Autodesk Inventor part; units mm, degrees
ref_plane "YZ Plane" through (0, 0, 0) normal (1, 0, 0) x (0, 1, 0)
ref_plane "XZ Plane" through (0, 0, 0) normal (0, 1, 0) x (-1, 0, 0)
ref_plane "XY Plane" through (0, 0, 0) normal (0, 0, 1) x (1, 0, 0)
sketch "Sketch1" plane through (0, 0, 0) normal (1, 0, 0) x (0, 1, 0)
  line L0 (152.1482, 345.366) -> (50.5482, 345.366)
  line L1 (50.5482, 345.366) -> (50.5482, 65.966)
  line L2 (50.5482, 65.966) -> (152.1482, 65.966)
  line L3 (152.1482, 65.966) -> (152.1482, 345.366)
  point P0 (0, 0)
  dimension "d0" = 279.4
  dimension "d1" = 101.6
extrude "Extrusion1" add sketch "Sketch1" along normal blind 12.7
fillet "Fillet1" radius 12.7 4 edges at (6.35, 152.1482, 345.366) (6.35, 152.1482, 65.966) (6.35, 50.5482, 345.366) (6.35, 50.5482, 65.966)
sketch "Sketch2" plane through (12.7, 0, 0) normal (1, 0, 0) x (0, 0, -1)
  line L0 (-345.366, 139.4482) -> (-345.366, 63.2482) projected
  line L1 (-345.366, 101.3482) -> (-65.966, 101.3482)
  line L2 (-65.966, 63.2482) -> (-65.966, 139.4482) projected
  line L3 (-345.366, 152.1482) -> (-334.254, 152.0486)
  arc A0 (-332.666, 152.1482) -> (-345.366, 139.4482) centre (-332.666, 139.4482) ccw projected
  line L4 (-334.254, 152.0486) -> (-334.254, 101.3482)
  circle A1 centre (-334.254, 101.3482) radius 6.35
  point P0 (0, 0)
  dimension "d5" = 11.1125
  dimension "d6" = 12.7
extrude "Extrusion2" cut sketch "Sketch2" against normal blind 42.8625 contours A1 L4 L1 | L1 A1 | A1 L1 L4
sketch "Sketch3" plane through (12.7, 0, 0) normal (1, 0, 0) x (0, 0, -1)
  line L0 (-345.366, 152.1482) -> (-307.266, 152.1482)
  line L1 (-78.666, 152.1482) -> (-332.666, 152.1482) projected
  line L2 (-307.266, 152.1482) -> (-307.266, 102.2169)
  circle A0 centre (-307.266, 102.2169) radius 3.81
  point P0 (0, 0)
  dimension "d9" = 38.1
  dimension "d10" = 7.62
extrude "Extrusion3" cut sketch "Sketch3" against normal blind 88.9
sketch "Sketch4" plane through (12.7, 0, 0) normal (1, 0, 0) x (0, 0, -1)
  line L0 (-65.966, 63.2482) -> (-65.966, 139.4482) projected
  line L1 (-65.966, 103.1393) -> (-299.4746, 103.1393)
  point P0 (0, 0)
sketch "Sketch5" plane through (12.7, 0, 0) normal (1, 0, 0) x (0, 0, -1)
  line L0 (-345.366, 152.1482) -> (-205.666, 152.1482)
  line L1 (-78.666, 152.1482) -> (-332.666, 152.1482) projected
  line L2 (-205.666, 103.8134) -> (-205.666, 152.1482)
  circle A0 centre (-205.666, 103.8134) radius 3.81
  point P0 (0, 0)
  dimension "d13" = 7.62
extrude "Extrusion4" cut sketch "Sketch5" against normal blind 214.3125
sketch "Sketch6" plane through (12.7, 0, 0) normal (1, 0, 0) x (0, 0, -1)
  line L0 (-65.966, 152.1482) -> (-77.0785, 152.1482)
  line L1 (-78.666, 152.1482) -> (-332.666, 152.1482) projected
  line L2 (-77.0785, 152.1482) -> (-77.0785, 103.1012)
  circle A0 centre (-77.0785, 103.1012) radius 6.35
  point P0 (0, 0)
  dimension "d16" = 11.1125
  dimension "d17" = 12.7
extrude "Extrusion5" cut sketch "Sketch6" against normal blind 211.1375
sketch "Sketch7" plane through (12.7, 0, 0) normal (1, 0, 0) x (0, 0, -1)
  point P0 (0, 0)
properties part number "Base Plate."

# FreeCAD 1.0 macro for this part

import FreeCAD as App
import Part
import Sketcher
from FreeCAD import Vector
Q = App.Units.Quantity


def edges_at(feature, points):
    """Names of the edges that pass closest to the given points."""
    edges = feature.Shape.Edges
    near = lambda p: min(range(len(edges)), key=lambda i: edges[i].distToShape(Part.Vertex(*p))[0])
    return sorted({f"Edge{near(p) + 1}" for p in points})

doc = App.newDocument("Part")
body = doc.addObject("PartDesign::Body", "Body")

# Sketch on YZ plane
sketch1 = body.newObject("Sketcher::SketchObject", "Sketch")
sketch1.AttachmentSupport = (doc.getObject("YZ_Plane"), [""])
sketch1.MapMode = "FlatFace"
sketch1.addGeometry(Part.LineSegment(Vector(152, 66, 0), Vector(152, 345, 0)), False)
sketch1.addGeometry(Part.LineSegment(Vector(152, 345, 0), Vector(51, 345, 0)), False)
sketch1.addGeometry(Part.LineSegment(Vector(51, 345, 0), Vector(51, 66, 0)), False)
sketch1.addGeometry(Part.LineSegment(Vector(51, 66, 0), Vector(152, 66, 0)), False)
sketch1.addConstraint(Sketcher.Constraint("Coincident", 0, 2, 1, 1))
sketch1.addConstraint(Sketcher.Constraint("Coincident", 1, 2, 2, 1))
sketch1.addConstraint(Sketcher.Constraint("Coincident", 2, 2, 3, 1))
sketch1.addConstraint(Sketcher.Constraint("Coincident", 3, 2, 0, 1))
sketch1.addConstraint(Sketcher.Constraint("Vertical", 0))
sketch1.addConstraint(Sketcher.Constraint("Horizontal", 1))
sketch1.addConstraint(Sketcher.Constraint("Vertical", 2))
sketch1.addConstraint(Sketcher.Constraint("Horizontal", 3))
sketch1.addConstraint(Sketcher.Constraint("DistanceX", 1, 2, 1, 1, Q("4 in")))
sketch1.addConstraint(Sketcher.Constraint("DistanceY", 0, 1, 0, 2, Q("11 in")))
sketch1.addConstraint(Sketcher.Constraint("DistanceX", -1, 1, 0, 2, Q("152.1482 mm")))
sketch1.addConstraint(Sketcher.Constraint("DistanceY", -1, 1, 0, 2, Q("345.366 mm")))
pad1 = body.newObject("PartDesign::Pad", "Pad")
pad1.Profile = sketch1
pad1.Length = Q("0.5 in")
doc.recompute()

fillet = body.newObject("PartDesign::Fillet", "Fillet")
fillet.Base = (pad1, edges_at(pad1, [
    (6.35, 152.148, 345.366),
    (6.35, 152.148, 65.966),
    (6.35, 50.548, 345.366),
    (6.35, 50.548, 65.966),
]))
fillet.Radius = Q("0.5 in")

# Sketch on YZ plane
sketch2 = body.newObject("Sketcher::SketchObject", "Sketch001")
sketch2.AttachmentSupport = (doc.getObject("YZ_Plane"), [""])
sketch2.MapMode = "FlatFace"
sketch2.AttachmentOffset = App.Placement(Vector(0, 0, 0.5 * 25.4), App.Rotation())
sketch2.addGeometry(Part.Circle(Vector(101, 334, 0), Vector(0, 0, 1), 6), False)
sketch2.addConstraint(Sketcher.Constraint("Diameter", 0, Q("0.5 in")))
sketch2.addConstraint(Sketcher.Constraint("DistanceY", -1, 1, 0, 3, Q("13.1596 in")))
sketch2.addConstraint(Sketcher.Constraint("DistanceX", -1, 1, 0, 3, Q("101.3482 mm")))
pocket1 = body.newObject("PartDesign::Pocket", "Pocket")
pocket1.Profile = sketch2
pocket1.Length = Q("1.6875 in")

# Sketch on YZ plane
sketch3 = body.newObject("Sketcher::SketchObject", "Sketch002")
sketch3.AttachmentSupport = (doc.getObject("YZ_Plane"), [""])
sketch3.MapMode = "FlatFace"
sketch3.AttachmentOffset = App.Placement(Vector(0, 0, 0.5 * 25.4), App.Rotation())
sketch3.addGeometry(Part.Circle(Vector(102.2, 307.3, 0), Vector(0, 0, 1), 3.8), False)
sketch3.addConstraint(Sketcher.Constraint("Diameter", 0, Q("0.3 in")))
sketch3.addConstraint(Sketcher.Constraint("DistanceX", -1, 1, 0, 3, Q("4.0242913 in")))
sketch3.addConstraint(Sketcher.Constraint("DistanceY", -1, 1, 0, 3, Q("307.266 mm")))
pocket2 = body.newObject("PartDesign::Pocket", "Pocket001")
pocket2.Profile = sketch3
pocket2.Length = Q("3.5 in")

# Sketch on YZ plane
sketch4 = body.newObject("Sketcher::SketchObject", "Sketch003")
sketch4.AttachmentSupport = (doc.getObject("YZ_Plane"), [""])
sketch4.MapMode = "FlatFace"
sketch4.AttachmentOffset = App.Placement(Vector(0, 0, 0.5 * 25.4), App.Rotation())
sketch4.addGeometry(Part.Circle(Vector(103.8, 205.7, 0), Vector(0, 0, 1), 3.8), False)
sketch4.addConstraint(Sketcher.Constraint("Diameter", 0, Q("0.3 in")))
sketch4.addConstraint(Sketcher.Constraint("DistanceX", -1, 1, 0, 3, Q("103.8134 mm")))
sketch4.addConstraint(Sketcher.Constraint("DistanceY", -1, 1, 0, 3, Q("205.666 mm")))
pocket3 = body.newObject("PartDesign::Pocket", "Pocket002")
pocket3.Profile = sketch4
pocket3.Length = Q("8.4375 in")

# Sketch on YZ plane
sketch5 = body.newObject("Sketcher::SketchObject", "Sketch004")
sketch5.AttachmentSupport = (doc.getObject("YZ_Plane"), [""])
sketch5.MapMode = "FlatFace"
sketch5.AttachmentOffset = App.Placement(Vector(0, 0, 0.5 * 25.4), App.Rotation())
sketch5.addGeometry(Part.Circle(Vector(103, 77, 0), Vector(0, 0, 1), 6), False)
sketch5.addConstraint(Sketcher.Constraint("Diameter", 0, Q("0.5 in")))
sketch5.addConstraint(Sketcher.Constraint("DistanceX", -1, 1, 0, 3, Q("4.0591 in")))
sketch5.addConstraint(Sketcher.Constraint("DistanceY", -1, 1, 0, 3, Q("77.0785 mm")))
pocket4 = body.newObject("PartDesign::Pocket", "Pocket003")
pocket4.Profile = sketch5
pocket4.Length = Q("8.3125 in")

doc.recompute()
